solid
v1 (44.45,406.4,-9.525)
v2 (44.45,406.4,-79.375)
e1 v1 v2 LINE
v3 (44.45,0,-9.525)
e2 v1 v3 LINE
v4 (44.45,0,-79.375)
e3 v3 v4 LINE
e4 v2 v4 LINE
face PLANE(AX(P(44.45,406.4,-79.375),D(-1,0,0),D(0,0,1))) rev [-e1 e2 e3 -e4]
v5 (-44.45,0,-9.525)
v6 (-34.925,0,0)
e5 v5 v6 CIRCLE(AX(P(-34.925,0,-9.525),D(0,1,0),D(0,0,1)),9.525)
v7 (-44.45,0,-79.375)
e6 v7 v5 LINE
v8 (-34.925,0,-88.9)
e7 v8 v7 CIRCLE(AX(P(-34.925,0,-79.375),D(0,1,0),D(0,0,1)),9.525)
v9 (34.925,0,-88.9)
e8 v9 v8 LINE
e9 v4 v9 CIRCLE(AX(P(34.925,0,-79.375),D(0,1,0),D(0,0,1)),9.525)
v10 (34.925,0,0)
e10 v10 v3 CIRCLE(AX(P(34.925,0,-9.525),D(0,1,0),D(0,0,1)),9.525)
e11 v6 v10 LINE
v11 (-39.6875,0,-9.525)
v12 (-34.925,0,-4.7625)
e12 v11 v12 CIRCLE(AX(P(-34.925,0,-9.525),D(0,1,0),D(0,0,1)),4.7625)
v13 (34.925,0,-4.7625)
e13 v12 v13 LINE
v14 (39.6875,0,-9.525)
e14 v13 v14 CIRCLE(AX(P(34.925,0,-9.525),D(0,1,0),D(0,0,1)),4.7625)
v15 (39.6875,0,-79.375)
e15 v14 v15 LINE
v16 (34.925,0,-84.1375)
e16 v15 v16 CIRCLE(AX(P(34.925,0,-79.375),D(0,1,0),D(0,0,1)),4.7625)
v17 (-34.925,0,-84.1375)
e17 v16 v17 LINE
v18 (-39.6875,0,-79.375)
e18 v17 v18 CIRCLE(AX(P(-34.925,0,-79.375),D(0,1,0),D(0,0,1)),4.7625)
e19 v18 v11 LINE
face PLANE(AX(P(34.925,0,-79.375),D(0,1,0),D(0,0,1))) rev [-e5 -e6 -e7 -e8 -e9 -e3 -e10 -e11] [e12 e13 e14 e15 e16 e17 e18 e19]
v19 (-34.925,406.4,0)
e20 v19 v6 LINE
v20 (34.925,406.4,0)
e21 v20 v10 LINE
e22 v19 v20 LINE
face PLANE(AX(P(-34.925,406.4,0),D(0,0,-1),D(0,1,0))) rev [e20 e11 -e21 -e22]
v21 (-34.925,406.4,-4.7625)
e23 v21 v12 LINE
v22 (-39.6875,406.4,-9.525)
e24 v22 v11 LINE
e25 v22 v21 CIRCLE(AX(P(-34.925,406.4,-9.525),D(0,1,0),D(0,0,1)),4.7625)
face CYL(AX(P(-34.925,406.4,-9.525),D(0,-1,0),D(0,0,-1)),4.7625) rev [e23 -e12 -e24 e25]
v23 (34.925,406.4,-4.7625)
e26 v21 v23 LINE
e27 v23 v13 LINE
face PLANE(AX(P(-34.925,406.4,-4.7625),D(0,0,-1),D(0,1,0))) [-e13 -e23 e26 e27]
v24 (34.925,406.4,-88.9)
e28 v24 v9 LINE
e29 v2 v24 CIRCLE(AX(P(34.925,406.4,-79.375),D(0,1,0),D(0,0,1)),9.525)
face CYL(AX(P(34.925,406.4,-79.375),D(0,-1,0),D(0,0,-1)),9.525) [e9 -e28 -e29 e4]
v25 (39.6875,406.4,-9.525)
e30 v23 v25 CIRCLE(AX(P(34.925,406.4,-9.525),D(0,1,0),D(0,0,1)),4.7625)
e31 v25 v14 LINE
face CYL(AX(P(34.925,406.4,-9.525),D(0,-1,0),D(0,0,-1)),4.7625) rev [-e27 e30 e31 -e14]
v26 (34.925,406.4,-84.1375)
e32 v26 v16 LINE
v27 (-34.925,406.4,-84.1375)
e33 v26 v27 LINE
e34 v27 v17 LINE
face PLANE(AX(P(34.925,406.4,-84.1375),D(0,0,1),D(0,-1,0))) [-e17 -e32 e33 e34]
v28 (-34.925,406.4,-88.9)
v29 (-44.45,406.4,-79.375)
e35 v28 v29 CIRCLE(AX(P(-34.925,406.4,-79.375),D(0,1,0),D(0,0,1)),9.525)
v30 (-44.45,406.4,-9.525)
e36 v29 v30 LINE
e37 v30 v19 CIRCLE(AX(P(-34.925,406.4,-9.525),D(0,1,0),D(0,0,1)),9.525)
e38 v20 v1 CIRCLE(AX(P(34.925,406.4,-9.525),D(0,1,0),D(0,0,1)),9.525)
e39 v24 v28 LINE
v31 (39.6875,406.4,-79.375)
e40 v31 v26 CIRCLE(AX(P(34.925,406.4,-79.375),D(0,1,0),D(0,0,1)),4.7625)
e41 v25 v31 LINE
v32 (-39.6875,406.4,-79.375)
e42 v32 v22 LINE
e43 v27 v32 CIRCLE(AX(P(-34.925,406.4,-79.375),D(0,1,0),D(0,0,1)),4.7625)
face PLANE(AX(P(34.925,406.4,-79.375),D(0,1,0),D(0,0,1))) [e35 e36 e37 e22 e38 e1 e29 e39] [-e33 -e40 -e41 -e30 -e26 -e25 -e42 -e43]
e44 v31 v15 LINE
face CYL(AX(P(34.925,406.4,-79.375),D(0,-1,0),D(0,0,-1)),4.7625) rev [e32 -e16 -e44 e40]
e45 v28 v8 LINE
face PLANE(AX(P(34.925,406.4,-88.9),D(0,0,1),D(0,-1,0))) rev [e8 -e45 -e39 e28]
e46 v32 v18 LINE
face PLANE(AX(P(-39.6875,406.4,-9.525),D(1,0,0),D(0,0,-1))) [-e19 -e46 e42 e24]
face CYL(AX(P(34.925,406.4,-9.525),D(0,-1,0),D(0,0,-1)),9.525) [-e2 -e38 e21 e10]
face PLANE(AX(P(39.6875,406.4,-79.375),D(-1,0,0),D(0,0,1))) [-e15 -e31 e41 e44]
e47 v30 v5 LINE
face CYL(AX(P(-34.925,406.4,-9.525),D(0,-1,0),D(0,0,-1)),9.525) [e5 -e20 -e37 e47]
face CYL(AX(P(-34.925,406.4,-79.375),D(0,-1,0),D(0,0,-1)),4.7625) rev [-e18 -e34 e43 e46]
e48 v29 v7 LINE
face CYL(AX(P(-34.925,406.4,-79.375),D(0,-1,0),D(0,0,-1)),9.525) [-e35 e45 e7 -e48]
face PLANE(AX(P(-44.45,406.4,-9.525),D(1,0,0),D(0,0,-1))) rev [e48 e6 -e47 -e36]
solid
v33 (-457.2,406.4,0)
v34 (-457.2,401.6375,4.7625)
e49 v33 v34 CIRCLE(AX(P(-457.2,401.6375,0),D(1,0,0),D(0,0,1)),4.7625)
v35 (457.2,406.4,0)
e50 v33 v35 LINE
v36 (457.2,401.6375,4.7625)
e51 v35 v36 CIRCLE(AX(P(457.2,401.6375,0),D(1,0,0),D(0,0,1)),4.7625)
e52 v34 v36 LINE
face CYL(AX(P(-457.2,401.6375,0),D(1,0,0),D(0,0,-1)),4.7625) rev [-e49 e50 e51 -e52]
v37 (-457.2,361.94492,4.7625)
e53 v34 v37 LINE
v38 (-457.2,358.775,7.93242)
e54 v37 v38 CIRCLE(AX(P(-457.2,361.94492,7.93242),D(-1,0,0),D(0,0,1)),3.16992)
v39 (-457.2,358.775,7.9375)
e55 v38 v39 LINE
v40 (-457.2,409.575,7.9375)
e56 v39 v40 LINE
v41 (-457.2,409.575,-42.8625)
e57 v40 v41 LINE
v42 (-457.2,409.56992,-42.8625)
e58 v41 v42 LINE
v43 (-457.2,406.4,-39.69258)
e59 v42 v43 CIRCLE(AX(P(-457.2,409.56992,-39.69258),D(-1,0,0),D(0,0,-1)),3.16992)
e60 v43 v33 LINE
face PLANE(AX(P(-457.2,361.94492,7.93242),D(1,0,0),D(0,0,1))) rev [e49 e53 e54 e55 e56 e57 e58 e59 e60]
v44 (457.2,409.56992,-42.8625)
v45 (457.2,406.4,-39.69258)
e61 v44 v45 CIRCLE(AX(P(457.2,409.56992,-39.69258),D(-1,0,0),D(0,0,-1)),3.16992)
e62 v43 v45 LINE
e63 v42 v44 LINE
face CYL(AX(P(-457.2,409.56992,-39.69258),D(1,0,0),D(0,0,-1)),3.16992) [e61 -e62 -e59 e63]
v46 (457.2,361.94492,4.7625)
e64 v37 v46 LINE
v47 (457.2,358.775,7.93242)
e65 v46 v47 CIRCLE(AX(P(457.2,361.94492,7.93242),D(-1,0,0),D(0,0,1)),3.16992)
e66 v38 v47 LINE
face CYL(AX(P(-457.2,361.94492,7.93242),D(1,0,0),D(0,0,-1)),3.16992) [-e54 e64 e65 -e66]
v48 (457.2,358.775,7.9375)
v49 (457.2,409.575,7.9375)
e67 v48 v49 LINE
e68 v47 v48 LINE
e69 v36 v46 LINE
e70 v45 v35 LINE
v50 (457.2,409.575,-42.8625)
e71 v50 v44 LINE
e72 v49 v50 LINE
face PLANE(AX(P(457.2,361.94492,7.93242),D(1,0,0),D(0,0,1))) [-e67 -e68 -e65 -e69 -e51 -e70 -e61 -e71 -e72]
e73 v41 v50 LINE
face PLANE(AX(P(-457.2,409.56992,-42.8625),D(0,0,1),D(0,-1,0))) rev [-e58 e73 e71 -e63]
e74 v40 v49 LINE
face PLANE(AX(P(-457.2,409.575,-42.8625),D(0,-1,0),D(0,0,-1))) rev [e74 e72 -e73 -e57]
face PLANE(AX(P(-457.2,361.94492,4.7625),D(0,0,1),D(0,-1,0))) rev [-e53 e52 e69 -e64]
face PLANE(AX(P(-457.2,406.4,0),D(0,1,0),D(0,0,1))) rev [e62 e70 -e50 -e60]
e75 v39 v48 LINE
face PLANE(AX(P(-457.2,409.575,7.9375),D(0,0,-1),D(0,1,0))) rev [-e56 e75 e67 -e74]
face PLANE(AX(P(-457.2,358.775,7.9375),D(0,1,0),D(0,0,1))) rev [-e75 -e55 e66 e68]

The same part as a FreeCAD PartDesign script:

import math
import FreeCAD as App
import Part
import Sketcher
from FreeCAD import Vector
Q = App.Units.Quantity

doc = App.newDocument("Part")
params = doc.addObject("Spreadsheet::Sheet", "Params")
for row, (alias, value) in enumerate([
    ("sketch1_radius", "0.375 in"),
    ("sketch1_radius2", "0.1875 in"),
    ("sketch1_width", "2.75 in"),
    ("pad1_length", "16 in"),
    ("sketch2_width", "2 in"),
    ("sketch2_radius", "0.1875 in"),
    ("pad2_length", "36 in"),
], start=1):
    params.set(f"A{row}", alias)
    params.set(f"B{row}", "=" + value)
    params.setAlias(f"B{row}", alias)

body = doc.addObject("PartDesign::Body", "Body")

# Sketch on XZ plane
sketch1 = body.newObject("Sketcher::SketchObject", "Sketch")
sketch1.AttachmentSupport = (doc.getObject("XZ_Plane"), [""])
sketch1.MapMode = "FlatFace"
sketch1.addGeometry([
    Part.LineSegment(Vector(-34.9, 0, 0), Vector(34.9, 0, 0)),  # 0
    Part.ArcOfCircle(Part.Circle(Vector(34.9, -9.5, 0), Vector(0, 0, 1), 9.5), math.radians(0), math.radians(90)),  # 1
    Part.LineSegment(Vector(44.5, -9.5, 0), Vector(44.5, -79.4, 0)),  # 2
    Part.ArcOfCircle(Part.Circle(Vector(34.9, -79.4, 0), Vector(0, 0, 1), 9.5), math.radians(-90), math.radians(0)),  # 3
    Part.LineSegment(Vector(34.9, -88.9, 0), Vector(-34.9, -88.9, 0)),  # 4
    Part.ArcOfCircle(Part.Circle(Vector(-34.9, -79.4, 0), Vector(0, 0, 1), 9.5), math.radians(180), math.radians(270)),  # 5
    Part.LineSegment(Vector(-44.5, -79.4, 0), Vector(-44.5, -9.5, 0)),  # 6
    Part.ArcOfCircle(Part.Circle(Vector(-34.9, -9.5, 0), Vector(0, 0, 1), 9.5), math.radians(90), math.radians(180)),  # 7
    Part.LineSegment(Vector(34.9, -4.8, 0), Vector(-34.9, -4.8, 0)),  # 8
    Part.ArcOfCircle(Part.Circle(Vector(-34.9, -9.5, 0), Vector(0, 0, 1), 4.8), math.radians(90), math.radians(180)),  # 9
    Part.LineSegment(Vector(-39.7, -9.5, 0), Vector(-39.7, -79.4, 0)),  # 10
    Part.ArcOfCircle(Part.Circle(Vector(-34.9, -79.4, 0), Vector(0, 0, 1), 4.8), math.radians(-180), math.radians(-90)),  # 11
    Part.LineSegment(Vector(-34.9, -84.1, 0), Vector(34.9, -84.1, 0)),  # 12
    Part.ArcOfCircle(Part.Circle(Vector(34.9, -79.4, 0), Vector(0, 0, 1), 4.8), math.radians(-90), math.radians(0)),  # 13
    Part.LineSegment(Vector(39.7, -79.4, 0), Vector(39.7, -9.5, 0)),  # 14
    Part.ArcOfCircle(Part.Circle(Vector(34.9, -9.5, 0), Vector(0, 0, 1), 4.8), math.radians(0), math.radians(90)),  # 15
], False)
sketch1.addConstraint([
    Sketcher.Constraint("Tangent", 0, 2, 1, 2),
    Sketcher.Constraint("Tangent", 1, 1, 2, 1),
    Sketcher.Constraint("Tangent", 2, 2, 3, 2),
    Sketcher.Constraint("Tangent", 3, 1, 4, 1),
    Sketcher.Constraint("Tangent", 4, 2, 5, 2),
    Sketcher.Constraint("Tangent", 5, 1, 6, 1),
    Sketcher.Constraint("Tangent", 6, 2, 7, 2),
    Sketcher.Constraint("Tangent", 7, 1, 0, 1),
    Sketcher.Constraint("Tangent", 8, 2, 9, 1),
    Sketcher.Constraint("Tangent", 9, 2, 10, 1),
    Sketcher.Constraint("Tangent", 10, 2, 11, 1),
    Sketcher.Constraint("Tangent", 11, 2, 12, 1),
    Sketcher.Constraint("Tangent", 12, 2, 13, 1),
    Sketcher.Constraint("Tangent", 13, 2, 14, 1),
    Sketcher.Constraint("Tangent", 14, 2, 15, 1),
    Sketcher.Constraint("Tangent", 15, 2, 8, 1),
    Sketcher.Constraint("Horizontal", 0),
    Sketcher.Constraint("Vertical", 2),
    Sketcher.Constraint("Horizontal", 4),
    Sketcher.Constraint("Vertical", 6),
    Sketcher.Constraint("Horizontal", 8),
    Sketcher.Constraint("Vertical", 10),
    Sketcher.Constraint("Horizontal", 12),
    Sketcher.Constraint("Vertical", 14),
    Sketcher.Constraint("Coincident", 9, 3, 7, 3),
    Sketcher.Constraint("Coincident", 11, 3, 5, 3),
    Sketcher.Constraint("Coincident", 13, 3, 3, 3),
    Sketcher.Constraint("Equal", 1, 3),
    Sketcher.Constraint("Equal", 3, 5),
    Sketcher.Constraint("Equal", 5, 7),
    Sketcher.Constraint("Equal", 13, 15),
    Sketcher.Constraint("Symmetric", 0, 2, 7, 1, -1, 1),
    Sketcher.Constraint("Equal", 12, 2),
    Sketcher.Constraint("Radius", 1, Q("0.375 in")),
    Sketcher.Constraint("Radius", 9, Q("0.1875 in")),
    Sketcher.Constraint("DistanceX", 0, 1, 0, 2, Q("2.75 in")),
])
sketch1.setExpression("Constraints[33]", "Params.sketch1_radius")
sketch1.setExpression("Constraints[34]", "Params.sketch1_radius2")
sketch1.setExpression("Constraints[35]", "Params.sketch1_width")
pad1 = body.newObject("PartDesign::Pad", "Pad")
pad1.Profile = sketch1
pad1.setExpression("Length", "Params.pad1_length")
pad1.Reversed = True
body2 = doc.addObject("PartDesign::Body", "Body001")

# Sketch on YZ plane
sketch2 = body2.newObject("Sketcher::SketchObject", "Sketch001")
sketch2.AttachmentSupport = (doc.getObject("YZ_Plane001"), [""])
sketch2.MapMode = "FlatFace"
sketch2.AttachmentOffset = App.Placement(Vector(0, 0, 18 * 25.4), App.Rotation())
sketch2.addGeometry([
    Part.LineSegment(Vector(358.775, 7.938, 0), Vector(409.575, 7.938, 0)),  # 0
    Part.LineSegment(Vector(409.575, 7.938, 0), Vector(409.575, -42.862, 0)),  # 1
    Part.LineSegment(Vector(409.575, -42.862, 0), Vector(409.57, -42.862, 0)),  # 2
    Part.ArcOfCircle(Part.Circle(Vector(409.57, -39.693, 0), Vector(0, 0, 1), 3.17), math.radians(180), math.radians(270)),  # 3
    Part.LineSegment(Vector(406.4, -39.693, 0), Vector(406.4, 0, 0)),  # 4
    Part.ArcOfCircle(Part.Circle(Vector(401.637, 0, 0), Vector(0, 0, 1), 4.763), math.radians(0), math.radians(90)),  # 5
    Part.LineSegment(Vector(401.637, 4.763, 0), Vector(361.945, 4.763, 0)),  # 6
    Part.ArcOfCircle(Part.Circle(Vector(361.945, 7.932, 0), Vector(0, 0, 1), 3.17), math.radians(180), math.radians(270)),  # 7
    Part.LineSegment(Vector(358.775, 7.932, 0), Vector(358.775, 7.938, 0)),  # 8
], False)
sketch2.addConstraint([
    Sketcher.Constraint("Coincident", 0, 2, 1, 1),
    Sketcher.Constraint("Coincident", 1, 2, 2, 1),
    Sketcher.Constraint("Tangent", 2, 2, 3, 2),
    Sketcher.Constraint("Tangent", 3, 1, 4, 1),
    Sketcher.Constraint("Tangent", 4, 2, 5, 1),
    Sketcher.Constraint("Tangent", 5, 2, 6, 1),
    Sketcher.Constraint("Tangent", 6, 2, 7, 2),
    Sketcher.Constraint("Tangent", 7, 1, 8, 1),
    Sketcher.Constraint("Coincident", 8, 2, 0, 1),
    Sketcher.Constraint("Horizontal", 0),
    Sketcher.Constraint("Vertical", 1),
    Sketcher.Constraint("Vertical", 4),
    Sketcher.Constraint("Horizontal", 6),
    Sketcher.Constraint("Equal", 3, 7),
    Sketcher.Constraint("PointOnObject", 5, 3, -1),
    Sketcher.Constraint("Vertical", 3, 3, 2, 2),
    Sketcher.Constraint("Equal", 0, 1),
    Sketcher.Constraint("Equal", 6, 4),
    Sketcher.Constraint("Equal", 2, 8),
    Sketcher.Constraint("DistanceX", 0, 1, 0, 2, Q("2 in")),
    Sketcher.Constraint("DistanceX", -1, 1, 3, 1, Q("16 in")),
    Sketcher.Constraint("Radius", 5, Q("0.1875 in")),
    Sketcher.Constraint("Radius", 3, Q("0.1248 in")),
    Sketcher.Constraint("DistanceX", 2, 2, 2, 1, Q("0.0002 in")),
])
sketch2.setExpression("Constraints[19]", "Params.sketch2_width")
sketch2.setExpression("Constraints[21]", "Params.sketch2_radius")
pad2 = body2.newObject("PartDesign::Pad", "Pad001")
pad2.Profile = sketch2
pad2.setExpression("Length", "Params.pad2_length")
pad2.Reversed = True

doc.recompute()
